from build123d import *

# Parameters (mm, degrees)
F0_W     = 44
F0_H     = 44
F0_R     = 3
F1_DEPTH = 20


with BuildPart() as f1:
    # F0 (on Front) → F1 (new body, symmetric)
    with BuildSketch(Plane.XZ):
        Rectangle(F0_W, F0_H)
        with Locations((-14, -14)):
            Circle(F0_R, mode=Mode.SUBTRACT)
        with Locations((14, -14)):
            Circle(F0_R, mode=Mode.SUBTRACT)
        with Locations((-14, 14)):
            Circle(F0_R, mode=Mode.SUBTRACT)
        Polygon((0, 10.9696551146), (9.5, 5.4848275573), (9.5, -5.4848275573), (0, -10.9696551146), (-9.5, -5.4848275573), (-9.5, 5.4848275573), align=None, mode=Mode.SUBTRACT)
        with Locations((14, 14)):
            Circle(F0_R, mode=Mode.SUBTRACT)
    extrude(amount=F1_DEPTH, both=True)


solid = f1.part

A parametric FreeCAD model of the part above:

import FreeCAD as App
import Part
import Sketcher
Q = App.Units.Quantity

doc = App.newDocument("Part")
params = doc.addObject("Spreadsheet::Sheet", "Params")
for row, (alias, value) in enumerate([
    ("sketch1_diameter", "6 mm"),
    ("sketch1_width", "44 mm"),
    ("pad1_length", "40 mm"),
], start=1):
    params.set(f"A{row}", alias)
    params.set(f"B{row}", "=" + value)
    params.setAlias(f"B{row}", alias)

body = doc.addObject("PartDesign::Body", "Body")

# Sketch on XZ plane
sketch1 = body.newObject("Sketcher::SketchObject", "Sketch")
sketch1.AttachmentSupport = (doc.getObject("XZ_Plane"), [""])
sketch1.MapMode = "FlatFace"
sketch1.addGeometry(Part.LineSegment(App.Vector(-22, 22, 0), App.Vector(-22, -22, 0)), False)
sketch1.addGeometry(Part.LineSegment(App.Vector(-22, -22, 0), App.Vector(22, -22, 0)), False)
sketch1.addGeometry(Part.LineSegment(App.Vector(22, -22, 0), App.Vector(22, 22, 0)), False)
sketch1.addGeometry(Part.LineSegment(App.Vector(22, 22, 0), App.Vector(-22, 22, 0)), False)
sketch1.addGeometry(Part.Circle(App.Vector(-14, -14, 0), App.Vector(0, 0, 1), 3), False)
sketch1.addGeometry(Part.Circle(App.Vector(14, -14, 0), App.Vector(0, 0, 1), 3), False)
sketch1.addGeometry(Part.Circle(App.Vector(-14, 14, 0), App.Vector(0, 0, 1), 3), False)
sketch1.addGeometry(Part.LineSegment(App.Vector(-9.5, 5.484828, 0), App.Vector(0, 10.969655, 0)), False)
sketch1.addGeometry(Part.LineSegment(App.Vector(0, 10.969655, 0), App.Vector(9.5, 5.484828, 0)), False)
sketch1.addGeometry(Part.LineSegment(App.Vector(9.5, 5.484828, 0), App.Vector(9.5, -5.484828, 0)), False)
sketch1.addGeometry(Part.LineSegment(App.Vector(9.5, -5.484828, 0), App.Vector(0, -10.969655, 0)), False)
sketch1.addGeometry(Part.LineSegment(App.Vector(0, -10.969655, 0), App.Vector(-9.5, -5.484828, 0)), False)
sketch1.addGeometry(Part.LineSegment(App.Vector(-9.5, -5.484828, 0), App.Vector(-9.5, 5.484828, 0)), False)
sketch1.addGeometry(Part.Circle(App.Vector(14, 14, 0), App.Vector(0, 0, 1), 3), False)
sketch1.addConstraint(Sketcher.Constraint("Coincident", 0, 2, 1, 1))
sketch1.addConstraint(Sketcher.Constraint("Coincident", 1, 2, 2, 1))
sketch1.addConstraint(Sketcher.Constraint("Coincident", 2, 2, 3, 1))
sketch1.addConstraint(Sketcher.Constraint("Coincident", 3, 2, 0, 1))
sketch1.addConstraint(Sketcher.Constraint("Coincident", 7, 2, 8, 1))
sketch1.addConstraint(Sketcher.Constraint("Coincident", 8, 2, 9, 1))
sketch1.addConstraint(Sketcher.Constraint("Coincident", 9, 2, 10, 1))
sketch1.addConstraint(Sketcher.Constraint("Coincident", 10, 2, 11, 1))
sketch1.addConstraint(Sketcher.Constraint("Coincident", 11, 2, 12, 1))
sketch1.addConstraint(Sketcher.Constraint("Coincident", 12, 2, 7, 1))
sketch1.addConstraint(Sketcher.Constraint("Vertical", 0))
sketch1.addConstraint(Sketcher.Constraint("Horizontal", 1))
sketch1.addConstraint(Sketcher.Constraint("Vertical", 2))
sketch1.addConstraint(Sketcher.Constraint("Horizontal", 3))
sketch1.addConstraint(Sketcher.Constraint("Vertical", 9))
sketch1.addConstraint(Sketcher.Constraint("Vertical", 12))
sketch1.addConstraint(Sketcher.Constraint("Equal", 4, 5))
sketch1.addConstraint(Sketcher.Constraint("Equal", 5, 6))
sketch1.addConstraint(Sketcher.Constraint("Equal", 6, 13))
sketch1.addConstraint(Sketcher.Constraint("Symmetric", 5, 3, 6, 3, -1, 1))
sketch1.addConstraint(Sketcher.Constraint("Symmetric", 4, 3, 13, 3, -1, 1))
sketch1.addConstraint(Sketcher.Constraint("Symmetric", 0, 2, 2, 2, -1, 1))
sketch1.addConstraint(Sketcher.Constraint("Symmetric", 7, 2, 10, 2, -1, 1))
sketch1.addConstraint(Sketcher.Constraint("Symmetric", 8, 2, 11, 2, -1, 1))
sketch1.addConstraint(Sketcher.Constraint("Symmetric", 4, 3, 5, 3, -2))
sketch1.addConstraint(Sketcher.Constraint("PointOnObject", 7, 2, -2))
sketch1.addConstraint(Sketcher.Constraint("Parallel", 7, 10))
sketch1.addConstraint(Sketcher.Constraint("Horizontal", 9, 2, 11, 2))
sketch1.addConstraint(Sketcher.Constraint("Equal", 3, 0))
sketch1.addConstraint(Sketcher.Constraint("Diameter", 4, 6.0))
sketch1.addConstraint(Sketcher.Constraint("DistanceX", 1, 1, 1, 2, 44.0))
sketch1.addConstraint(Sketcher.Constraint("Angle", 7, Q("30 deg")))
sketch1.addConstraint(Sketcher.Constraint("DistanceX", 4, 3, -1, 1, 14.0))
sketch1.addConstraint(Sketcher.Constraint("DistanceY", 4, 3, -1, 1, 14.0))
sketch1.addConstraint(Sketcher.Constraint("DistanceX", 11, 2, 9, 2, 19.0))
sketch1.addConstraint(Sketcher.Constraint("DistanceY", 9, 2, 9, 1, 10.969655))
sketch1.setExpression("Constraints[29]", "Params.sketch1_diameter")
sketch1.setExpression("Constraints[30]", "Params.sketch1_width")
pad1 = body.newObject("PartDesign::Pad", "Pad")
pad1.Profile = sketch1
pad1.setExpression("Length", "Params.pad1_length")
pad1.Midplane = True

doc.recompute()
